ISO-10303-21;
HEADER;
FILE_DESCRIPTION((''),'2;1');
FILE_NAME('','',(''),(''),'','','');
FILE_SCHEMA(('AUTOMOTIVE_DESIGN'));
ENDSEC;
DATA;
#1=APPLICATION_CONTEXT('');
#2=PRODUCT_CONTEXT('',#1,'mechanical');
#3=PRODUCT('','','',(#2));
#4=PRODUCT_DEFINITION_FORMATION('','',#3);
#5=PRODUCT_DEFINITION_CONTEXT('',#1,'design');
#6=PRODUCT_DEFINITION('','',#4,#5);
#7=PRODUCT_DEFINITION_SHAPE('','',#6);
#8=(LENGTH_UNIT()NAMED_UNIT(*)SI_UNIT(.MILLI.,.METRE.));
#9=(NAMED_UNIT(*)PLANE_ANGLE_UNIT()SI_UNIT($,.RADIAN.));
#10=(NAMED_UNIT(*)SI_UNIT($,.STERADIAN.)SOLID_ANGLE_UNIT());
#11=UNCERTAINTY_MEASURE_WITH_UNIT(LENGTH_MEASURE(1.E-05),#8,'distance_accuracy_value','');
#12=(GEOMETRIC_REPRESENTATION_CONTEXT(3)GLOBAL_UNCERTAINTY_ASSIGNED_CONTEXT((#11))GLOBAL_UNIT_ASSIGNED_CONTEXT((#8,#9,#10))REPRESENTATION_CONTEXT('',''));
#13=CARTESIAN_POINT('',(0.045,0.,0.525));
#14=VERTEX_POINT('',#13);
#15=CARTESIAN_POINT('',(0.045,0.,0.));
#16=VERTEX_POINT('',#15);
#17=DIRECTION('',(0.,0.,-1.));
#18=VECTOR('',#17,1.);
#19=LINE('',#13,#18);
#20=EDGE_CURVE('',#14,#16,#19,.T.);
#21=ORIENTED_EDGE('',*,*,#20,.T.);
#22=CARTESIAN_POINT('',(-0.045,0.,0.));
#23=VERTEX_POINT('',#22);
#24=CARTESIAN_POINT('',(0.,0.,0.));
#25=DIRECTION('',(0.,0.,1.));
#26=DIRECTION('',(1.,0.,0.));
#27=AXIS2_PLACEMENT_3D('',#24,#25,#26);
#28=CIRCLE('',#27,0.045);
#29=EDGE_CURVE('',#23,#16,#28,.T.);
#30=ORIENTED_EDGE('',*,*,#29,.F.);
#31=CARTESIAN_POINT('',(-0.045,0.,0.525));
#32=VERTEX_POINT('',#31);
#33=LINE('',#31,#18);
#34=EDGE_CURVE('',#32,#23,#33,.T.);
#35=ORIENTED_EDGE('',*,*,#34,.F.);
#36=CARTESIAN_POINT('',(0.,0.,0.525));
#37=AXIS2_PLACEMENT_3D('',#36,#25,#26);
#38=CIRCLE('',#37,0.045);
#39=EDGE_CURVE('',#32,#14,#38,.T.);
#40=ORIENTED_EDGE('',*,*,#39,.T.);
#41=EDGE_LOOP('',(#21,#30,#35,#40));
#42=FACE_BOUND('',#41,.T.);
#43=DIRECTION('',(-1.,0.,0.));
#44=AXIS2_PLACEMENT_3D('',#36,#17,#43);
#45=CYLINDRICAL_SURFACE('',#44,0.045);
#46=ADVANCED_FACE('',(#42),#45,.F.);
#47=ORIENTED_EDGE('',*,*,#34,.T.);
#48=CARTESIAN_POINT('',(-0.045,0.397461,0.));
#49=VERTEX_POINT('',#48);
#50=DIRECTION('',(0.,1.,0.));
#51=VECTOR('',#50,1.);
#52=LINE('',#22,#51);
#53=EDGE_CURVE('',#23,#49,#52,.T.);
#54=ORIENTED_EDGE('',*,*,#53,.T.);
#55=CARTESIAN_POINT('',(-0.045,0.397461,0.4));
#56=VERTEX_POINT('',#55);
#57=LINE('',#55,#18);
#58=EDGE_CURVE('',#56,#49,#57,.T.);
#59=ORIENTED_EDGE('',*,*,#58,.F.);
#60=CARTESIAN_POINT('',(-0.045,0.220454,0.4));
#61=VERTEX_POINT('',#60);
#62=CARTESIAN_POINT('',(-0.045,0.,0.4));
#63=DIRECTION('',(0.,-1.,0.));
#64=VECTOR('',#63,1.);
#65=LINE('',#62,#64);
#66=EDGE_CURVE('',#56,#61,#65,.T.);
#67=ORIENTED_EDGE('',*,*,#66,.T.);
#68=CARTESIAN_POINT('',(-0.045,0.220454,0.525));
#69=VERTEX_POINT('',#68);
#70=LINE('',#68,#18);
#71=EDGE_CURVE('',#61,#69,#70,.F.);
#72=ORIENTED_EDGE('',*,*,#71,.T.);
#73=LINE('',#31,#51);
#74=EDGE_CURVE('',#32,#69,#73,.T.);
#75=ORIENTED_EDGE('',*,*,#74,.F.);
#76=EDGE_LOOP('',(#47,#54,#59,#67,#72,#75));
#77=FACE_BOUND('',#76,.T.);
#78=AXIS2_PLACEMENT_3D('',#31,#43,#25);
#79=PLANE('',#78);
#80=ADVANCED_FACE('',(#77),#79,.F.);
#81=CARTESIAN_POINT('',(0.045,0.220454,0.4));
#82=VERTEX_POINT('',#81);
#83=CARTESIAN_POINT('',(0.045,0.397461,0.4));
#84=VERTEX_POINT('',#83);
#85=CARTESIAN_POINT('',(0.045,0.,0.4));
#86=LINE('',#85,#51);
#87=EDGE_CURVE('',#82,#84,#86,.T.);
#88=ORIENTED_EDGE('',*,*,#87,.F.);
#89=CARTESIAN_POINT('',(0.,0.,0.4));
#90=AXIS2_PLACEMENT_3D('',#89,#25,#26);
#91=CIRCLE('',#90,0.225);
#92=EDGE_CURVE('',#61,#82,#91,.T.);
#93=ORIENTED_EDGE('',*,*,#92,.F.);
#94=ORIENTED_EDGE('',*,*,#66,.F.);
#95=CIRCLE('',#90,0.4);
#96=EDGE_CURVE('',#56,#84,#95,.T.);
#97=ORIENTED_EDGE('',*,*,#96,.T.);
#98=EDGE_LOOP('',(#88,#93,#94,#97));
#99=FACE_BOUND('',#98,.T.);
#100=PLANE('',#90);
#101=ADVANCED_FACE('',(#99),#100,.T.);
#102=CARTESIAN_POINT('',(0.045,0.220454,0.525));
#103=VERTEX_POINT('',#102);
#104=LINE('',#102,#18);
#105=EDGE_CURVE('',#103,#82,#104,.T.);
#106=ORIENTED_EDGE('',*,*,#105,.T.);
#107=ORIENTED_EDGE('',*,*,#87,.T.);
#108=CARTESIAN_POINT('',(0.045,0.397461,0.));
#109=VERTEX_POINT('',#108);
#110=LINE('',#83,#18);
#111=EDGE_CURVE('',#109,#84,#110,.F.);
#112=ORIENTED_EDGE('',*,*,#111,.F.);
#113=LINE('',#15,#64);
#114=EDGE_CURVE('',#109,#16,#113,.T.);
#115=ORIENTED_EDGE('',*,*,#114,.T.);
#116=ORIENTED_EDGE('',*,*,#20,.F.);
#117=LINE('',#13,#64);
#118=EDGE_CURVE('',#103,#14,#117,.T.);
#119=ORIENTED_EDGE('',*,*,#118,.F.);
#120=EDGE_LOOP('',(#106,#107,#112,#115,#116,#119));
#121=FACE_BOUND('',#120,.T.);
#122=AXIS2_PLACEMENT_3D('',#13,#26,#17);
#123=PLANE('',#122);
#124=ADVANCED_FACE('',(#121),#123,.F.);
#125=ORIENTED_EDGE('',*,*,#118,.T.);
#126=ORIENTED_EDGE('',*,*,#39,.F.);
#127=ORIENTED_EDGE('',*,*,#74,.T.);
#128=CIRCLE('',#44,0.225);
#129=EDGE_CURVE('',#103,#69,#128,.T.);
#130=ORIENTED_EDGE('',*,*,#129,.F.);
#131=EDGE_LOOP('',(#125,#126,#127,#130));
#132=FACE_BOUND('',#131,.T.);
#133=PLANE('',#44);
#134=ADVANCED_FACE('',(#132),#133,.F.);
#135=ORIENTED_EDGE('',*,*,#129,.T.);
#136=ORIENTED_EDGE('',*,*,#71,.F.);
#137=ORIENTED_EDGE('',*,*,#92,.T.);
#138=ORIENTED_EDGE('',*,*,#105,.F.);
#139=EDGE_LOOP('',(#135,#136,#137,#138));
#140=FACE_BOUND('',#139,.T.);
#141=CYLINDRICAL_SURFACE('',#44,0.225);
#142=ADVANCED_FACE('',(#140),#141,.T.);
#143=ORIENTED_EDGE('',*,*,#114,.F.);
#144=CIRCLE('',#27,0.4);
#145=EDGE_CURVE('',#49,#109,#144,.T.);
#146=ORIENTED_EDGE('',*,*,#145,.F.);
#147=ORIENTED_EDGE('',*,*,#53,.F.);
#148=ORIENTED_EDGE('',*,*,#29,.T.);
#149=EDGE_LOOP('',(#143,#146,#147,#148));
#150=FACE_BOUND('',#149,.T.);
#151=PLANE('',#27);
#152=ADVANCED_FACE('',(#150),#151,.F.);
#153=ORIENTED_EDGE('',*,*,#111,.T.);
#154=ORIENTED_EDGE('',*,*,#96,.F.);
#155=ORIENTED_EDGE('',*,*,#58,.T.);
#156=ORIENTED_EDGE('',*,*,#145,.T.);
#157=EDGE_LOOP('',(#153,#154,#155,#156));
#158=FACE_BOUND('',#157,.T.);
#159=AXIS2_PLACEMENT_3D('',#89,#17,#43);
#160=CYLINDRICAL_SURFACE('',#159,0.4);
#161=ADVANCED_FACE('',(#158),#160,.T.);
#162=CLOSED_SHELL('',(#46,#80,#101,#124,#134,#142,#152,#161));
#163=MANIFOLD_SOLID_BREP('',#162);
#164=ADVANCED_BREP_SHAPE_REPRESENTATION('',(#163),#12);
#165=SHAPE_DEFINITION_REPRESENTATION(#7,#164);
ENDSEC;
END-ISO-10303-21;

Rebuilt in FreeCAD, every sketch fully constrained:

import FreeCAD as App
import Part
import Sketcher
from FreeCAD import Vector
Q = App.Units.Quantity

doc = App.newDocument("Part")
body = doc.addObject("PartDesign::Body", "Body")

sketch1 = body.newObject("Sketcher::SketchObject", "Sketch")
sketch1.AttachmentSupport = (doc.getObject("XY_Plane"), [""])
sketch1.MapMode = "FlatFace"
sketch1.addGeometry(Part.Circle(Vector(0, 0, 0), Vector(0, 0, 1), 0.4), False)
sketch1.addConstraint([
    Sketcher.Constraint("Coincident", 0, 3, -1, 1),
    Sketcher.Constraint("Diameter", 0, Q("0.8 mm")),
])
pad1 = body.newObject("PartDesign::Pad", "Pad")
pad1.Profile = sketch1
pad1.Length = 0.4

sketch2 = body.newObject("Sketcher::SketchObject", "Sketch001")
sketch2.AttachmentSupport = (doc.getObject("XY_Plane"), [""])
sketch2.MapMode = "FlatFace"
sketch2.addGeometry(Part.Circle(Vector(0, 0, 0), Vector(0, 0, 1), 0.23), False)
sketch2.addConstraint([
    Sketcher.Constraint("Coincident", 0, 3, -1, 1),
    Sketcher.Constraint("Diameter", 0, Q("0.45 mm")),
])
pad2 = body.newObject("PartDesign::Pad", "Pad001")
pad2.Profile = sketch2
pad2.Length = 0.525

sketch3 = body.newObject("Sketcher::SketchObject", "Sketch002")
sketch3.AttachmentSupport = (doc.getObject("XY_Plane"), [""])
sketch3.MapMode = "FlatFace"
sketch3.addGeometry(Part.Circle(Vector(0, 0, 0), Vector(0, 0, 1), 0.045), False)
sketch3.addConstraint([
    Sketcher.Constraint("Coincident", 0, 3, -1, 1),
    Sketcher.Constraint("Diameter", 0, Q("0.09 mm")),
])
pocket1 = body.newObject("PartDesign::Pocket", "Pocket")
pocket1.Profile = sketch3
pocket1.Type = "ThroughAll"
pocket1.Reversed = True

sketch4 = body.newObject("Sketcher::SketchObject", "Sketch003")
sketch4.AttachmentSupport = (doc.getObject("XY_Plane"), [""])
sketch4.MapMode = "FlatFace"
sketch4.addGeometry([
    Part.LineSegment(Vector(0.04, 0.5, 0), Vector(0.04, 0, 0)),
    Part.LineSegment(Vector(0.04, 0, 0), Vector(-0.04, 0, 0)),
    Part.LineSegment(Vector(-0.04, 0, 0), Vector(-0.04, 0.5, 0)),
    Part.LineSegment(Vector(-0.04, 0.5, 0), Vector(0.04, 0.5, 0)),
], False)
sketch4.addConstraint([
    Sketcher.Constraint("Coincident", 0, 2, 1, 1),
    Sketcher.Constraint("Coincident", 1, 2, 2, 1),
    Sketcher.Constraint("Coincident", 2, 2, 3, 1),
    Sketcher.Constraint("Coincident", 3, 2, 0, 1),
    Sketcher.Constraint("Vertical", 0),
    Sketcher.Constraint("Horizontal", 1),
    Sketcher.Constraint("Vertical", 2),
    Sketcher.Constraint("Horizontal", 3),
    Sketcher.Constraint("Symmetric", 0, 2, 1, 2, -1, 1),
    Sketcher.Constraint("DistanceY", 0, 2, 0, 1, Q("0.5 mm")),
    Sketcher.Constraint("DistanceX", 1, 2, 1, 1, Q("0.09 mm")),
])
pocket2 = body.newObject("PartDesign::Pocket", "Pocket001")
pocket2.Profile = sketch4
pocket2.Type = "ThroughAll"
pocket2.Reversed = True

doc.recompute()
